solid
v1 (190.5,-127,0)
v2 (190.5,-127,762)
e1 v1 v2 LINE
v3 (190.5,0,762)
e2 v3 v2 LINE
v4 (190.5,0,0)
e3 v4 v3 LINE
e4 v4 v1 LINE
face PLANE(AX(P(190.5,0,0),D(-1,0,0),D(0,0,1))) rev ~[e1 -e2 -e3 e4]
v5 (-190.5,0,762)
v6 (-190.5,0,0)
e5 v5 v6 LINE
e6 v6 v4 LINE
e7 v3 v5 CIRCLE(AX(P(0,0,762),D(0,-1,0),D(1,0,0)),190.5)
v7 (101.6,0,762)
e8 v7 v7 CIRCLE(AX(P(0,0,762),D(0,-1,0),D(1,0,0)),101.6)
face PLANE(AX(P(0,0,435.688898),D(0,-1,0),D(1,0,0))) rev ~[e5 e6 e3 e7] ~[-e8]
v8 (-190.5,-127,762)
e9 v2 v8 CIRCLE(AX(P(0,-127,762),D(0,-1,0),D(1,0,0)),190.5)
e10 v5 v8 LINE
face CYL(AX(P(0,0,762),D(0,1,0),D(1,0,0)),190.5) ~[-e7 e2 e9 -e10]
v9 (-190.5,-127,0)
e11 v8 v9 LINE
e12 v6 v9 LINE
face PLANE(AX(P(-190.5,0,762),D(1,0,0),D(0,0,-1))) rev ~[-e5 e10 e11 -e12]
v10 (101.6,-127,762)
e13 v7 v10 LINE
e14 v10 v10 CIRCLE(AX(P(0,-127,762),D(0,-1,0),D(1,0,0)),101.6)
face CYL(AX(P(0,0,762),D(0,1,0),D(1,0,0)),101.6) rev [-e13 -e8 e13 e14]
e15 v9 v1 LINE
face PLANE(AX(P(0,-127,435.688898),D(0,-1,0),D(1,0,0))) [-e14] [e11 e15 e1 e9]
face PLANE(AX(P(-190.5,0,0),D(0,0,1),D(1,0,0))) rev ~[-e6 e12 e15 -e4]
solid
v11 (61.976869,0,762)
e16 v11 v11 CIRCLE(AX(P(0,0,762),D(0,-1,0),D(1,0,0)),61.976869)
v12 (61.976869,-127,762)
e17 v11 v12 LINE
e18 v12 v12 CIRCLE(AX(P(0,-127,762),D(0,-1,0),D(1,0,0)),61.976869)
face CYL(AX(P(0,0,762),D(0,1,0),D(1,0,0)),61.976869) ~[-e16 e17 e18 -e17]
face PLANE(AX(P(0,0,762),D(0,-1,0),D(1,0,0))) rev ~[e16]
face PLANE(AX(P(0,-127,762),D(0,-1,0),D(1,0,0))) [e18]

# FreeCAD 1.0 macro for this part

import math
import FreeCAD as App
import Part
import Sketcher

V = App.Vector
Q = App.Units.Quantity

doc = App.newDocument("Part")
params = doc.addObject("Spreadsheet::Sheet", "Params")
for row, (alias, value) in enumerate([
    ("sketch1_diameter", "8 in"),
    ("sketch1_radius", "7.5 in"),
    ("sketch1_height", "30 in"),
    ("pad1_length", "5 in"),
], start=1):
    params.set(f"A{row}", alias)
    params.set(f"B{row}", "=" + value)
    params.setAlias(f"B{row}", alias)

body = doc.addObject("PartDesign::Body", "Body")
body.AllowCompound = True

sketch1 = body.newObject("Sketcher::SketchObject", "Sketch")
sketch1.AttachmentSupport = (doc.getObject("XZ_Plane"), [""])
sketch1.MapMode = "FlatFace"
sketch1.addGeometry(Part.LineSegment(V(-190.5, 762, 0), V(-190.5, 0, 0)), False)
sketch1.addGeometry(Part.LineSegment(V(-190.5, 0, 0), V(190.5, 0, 0)), False)
sketch1.addGeometry(Part.LineSegment(V(190.5, 0, 0), V(190.5, 762, 0)), False)
sketch1.addGeometry(Part.ArcOfCircle(Part.Circle(V(0, 762, 0), V(0, 0, 1), 190.5), math.radians(0), math.radians(180)), False)
sketch1.addGeometry(Part.Circle(V(0, 762, 0), V(0, 0, 1), 101.6), False)
sketch1.addGeometry(Part.Circle(V(0, 762, 0), V(0, 0, 1), 61.976869), False)
sketch1.addConstraint(Sketcher.Constraint("Coincident", 0, 2, 1, 1))
sketch1.addConstraint(Sketcher.Constraint("Coincident", 1, 2, 2, 1))
sketch1.addConstraint(Sketcher.Constraint("Tangent", 2, 2, 3, 1))
sketch1.addConstraint(Sketcher.Constraint("Tangent", 3, 2, 0, 1))
sketch1.addConstraint(Sketcher.Constraint("Vertical", 0))
sketch1.addConstraint(Sketcher.Constraint("Horizontal", 1))
sketch1.addConstraint(Sketcher.Constraint("Vertical", 2))
sketch1.addConstraint(Sketcher.Constraint("Coincident", 4, 3, 3, 3))
sketch1.addConstraint(Sketcher.Constraint("Coincident", 5, 3, 3, 3))
sketch1.addConstraint(Sketcher.Constraint("Symmetric", 0, 2, 1, 2, -1, 1))
sketch1.addConstraint(Sketcher.Constraint("Diameter", 4, Q("8 in")))
sketch1.addConstraint(Sketcher.Constraint("Radius", 3, Q("7.5 in")))
sketch1.addConstraint(Sketcher.Constraint("DistanceY", 0, 2, 0, 1, Q("30 in")))
sketch1.addConstraint(Sketcher.Constraint("Diameter", 5, Q("123.953738 mm")))
sketch1.setExpression("Constraints[10]", "Params.sketch1_diameter")
sketch1.setExpression("Constraints[11]", "Params.sketch1_radius")
sketch1.setExpression("Constraints[12]", "Params.sketch1_height")
pad1 = body.newObject("PartDesign::Pad", "Pad")
pad1.Profile = sketch1
pad1.setExpression("Length", "Params.pad1_length")

doc.recompute()
